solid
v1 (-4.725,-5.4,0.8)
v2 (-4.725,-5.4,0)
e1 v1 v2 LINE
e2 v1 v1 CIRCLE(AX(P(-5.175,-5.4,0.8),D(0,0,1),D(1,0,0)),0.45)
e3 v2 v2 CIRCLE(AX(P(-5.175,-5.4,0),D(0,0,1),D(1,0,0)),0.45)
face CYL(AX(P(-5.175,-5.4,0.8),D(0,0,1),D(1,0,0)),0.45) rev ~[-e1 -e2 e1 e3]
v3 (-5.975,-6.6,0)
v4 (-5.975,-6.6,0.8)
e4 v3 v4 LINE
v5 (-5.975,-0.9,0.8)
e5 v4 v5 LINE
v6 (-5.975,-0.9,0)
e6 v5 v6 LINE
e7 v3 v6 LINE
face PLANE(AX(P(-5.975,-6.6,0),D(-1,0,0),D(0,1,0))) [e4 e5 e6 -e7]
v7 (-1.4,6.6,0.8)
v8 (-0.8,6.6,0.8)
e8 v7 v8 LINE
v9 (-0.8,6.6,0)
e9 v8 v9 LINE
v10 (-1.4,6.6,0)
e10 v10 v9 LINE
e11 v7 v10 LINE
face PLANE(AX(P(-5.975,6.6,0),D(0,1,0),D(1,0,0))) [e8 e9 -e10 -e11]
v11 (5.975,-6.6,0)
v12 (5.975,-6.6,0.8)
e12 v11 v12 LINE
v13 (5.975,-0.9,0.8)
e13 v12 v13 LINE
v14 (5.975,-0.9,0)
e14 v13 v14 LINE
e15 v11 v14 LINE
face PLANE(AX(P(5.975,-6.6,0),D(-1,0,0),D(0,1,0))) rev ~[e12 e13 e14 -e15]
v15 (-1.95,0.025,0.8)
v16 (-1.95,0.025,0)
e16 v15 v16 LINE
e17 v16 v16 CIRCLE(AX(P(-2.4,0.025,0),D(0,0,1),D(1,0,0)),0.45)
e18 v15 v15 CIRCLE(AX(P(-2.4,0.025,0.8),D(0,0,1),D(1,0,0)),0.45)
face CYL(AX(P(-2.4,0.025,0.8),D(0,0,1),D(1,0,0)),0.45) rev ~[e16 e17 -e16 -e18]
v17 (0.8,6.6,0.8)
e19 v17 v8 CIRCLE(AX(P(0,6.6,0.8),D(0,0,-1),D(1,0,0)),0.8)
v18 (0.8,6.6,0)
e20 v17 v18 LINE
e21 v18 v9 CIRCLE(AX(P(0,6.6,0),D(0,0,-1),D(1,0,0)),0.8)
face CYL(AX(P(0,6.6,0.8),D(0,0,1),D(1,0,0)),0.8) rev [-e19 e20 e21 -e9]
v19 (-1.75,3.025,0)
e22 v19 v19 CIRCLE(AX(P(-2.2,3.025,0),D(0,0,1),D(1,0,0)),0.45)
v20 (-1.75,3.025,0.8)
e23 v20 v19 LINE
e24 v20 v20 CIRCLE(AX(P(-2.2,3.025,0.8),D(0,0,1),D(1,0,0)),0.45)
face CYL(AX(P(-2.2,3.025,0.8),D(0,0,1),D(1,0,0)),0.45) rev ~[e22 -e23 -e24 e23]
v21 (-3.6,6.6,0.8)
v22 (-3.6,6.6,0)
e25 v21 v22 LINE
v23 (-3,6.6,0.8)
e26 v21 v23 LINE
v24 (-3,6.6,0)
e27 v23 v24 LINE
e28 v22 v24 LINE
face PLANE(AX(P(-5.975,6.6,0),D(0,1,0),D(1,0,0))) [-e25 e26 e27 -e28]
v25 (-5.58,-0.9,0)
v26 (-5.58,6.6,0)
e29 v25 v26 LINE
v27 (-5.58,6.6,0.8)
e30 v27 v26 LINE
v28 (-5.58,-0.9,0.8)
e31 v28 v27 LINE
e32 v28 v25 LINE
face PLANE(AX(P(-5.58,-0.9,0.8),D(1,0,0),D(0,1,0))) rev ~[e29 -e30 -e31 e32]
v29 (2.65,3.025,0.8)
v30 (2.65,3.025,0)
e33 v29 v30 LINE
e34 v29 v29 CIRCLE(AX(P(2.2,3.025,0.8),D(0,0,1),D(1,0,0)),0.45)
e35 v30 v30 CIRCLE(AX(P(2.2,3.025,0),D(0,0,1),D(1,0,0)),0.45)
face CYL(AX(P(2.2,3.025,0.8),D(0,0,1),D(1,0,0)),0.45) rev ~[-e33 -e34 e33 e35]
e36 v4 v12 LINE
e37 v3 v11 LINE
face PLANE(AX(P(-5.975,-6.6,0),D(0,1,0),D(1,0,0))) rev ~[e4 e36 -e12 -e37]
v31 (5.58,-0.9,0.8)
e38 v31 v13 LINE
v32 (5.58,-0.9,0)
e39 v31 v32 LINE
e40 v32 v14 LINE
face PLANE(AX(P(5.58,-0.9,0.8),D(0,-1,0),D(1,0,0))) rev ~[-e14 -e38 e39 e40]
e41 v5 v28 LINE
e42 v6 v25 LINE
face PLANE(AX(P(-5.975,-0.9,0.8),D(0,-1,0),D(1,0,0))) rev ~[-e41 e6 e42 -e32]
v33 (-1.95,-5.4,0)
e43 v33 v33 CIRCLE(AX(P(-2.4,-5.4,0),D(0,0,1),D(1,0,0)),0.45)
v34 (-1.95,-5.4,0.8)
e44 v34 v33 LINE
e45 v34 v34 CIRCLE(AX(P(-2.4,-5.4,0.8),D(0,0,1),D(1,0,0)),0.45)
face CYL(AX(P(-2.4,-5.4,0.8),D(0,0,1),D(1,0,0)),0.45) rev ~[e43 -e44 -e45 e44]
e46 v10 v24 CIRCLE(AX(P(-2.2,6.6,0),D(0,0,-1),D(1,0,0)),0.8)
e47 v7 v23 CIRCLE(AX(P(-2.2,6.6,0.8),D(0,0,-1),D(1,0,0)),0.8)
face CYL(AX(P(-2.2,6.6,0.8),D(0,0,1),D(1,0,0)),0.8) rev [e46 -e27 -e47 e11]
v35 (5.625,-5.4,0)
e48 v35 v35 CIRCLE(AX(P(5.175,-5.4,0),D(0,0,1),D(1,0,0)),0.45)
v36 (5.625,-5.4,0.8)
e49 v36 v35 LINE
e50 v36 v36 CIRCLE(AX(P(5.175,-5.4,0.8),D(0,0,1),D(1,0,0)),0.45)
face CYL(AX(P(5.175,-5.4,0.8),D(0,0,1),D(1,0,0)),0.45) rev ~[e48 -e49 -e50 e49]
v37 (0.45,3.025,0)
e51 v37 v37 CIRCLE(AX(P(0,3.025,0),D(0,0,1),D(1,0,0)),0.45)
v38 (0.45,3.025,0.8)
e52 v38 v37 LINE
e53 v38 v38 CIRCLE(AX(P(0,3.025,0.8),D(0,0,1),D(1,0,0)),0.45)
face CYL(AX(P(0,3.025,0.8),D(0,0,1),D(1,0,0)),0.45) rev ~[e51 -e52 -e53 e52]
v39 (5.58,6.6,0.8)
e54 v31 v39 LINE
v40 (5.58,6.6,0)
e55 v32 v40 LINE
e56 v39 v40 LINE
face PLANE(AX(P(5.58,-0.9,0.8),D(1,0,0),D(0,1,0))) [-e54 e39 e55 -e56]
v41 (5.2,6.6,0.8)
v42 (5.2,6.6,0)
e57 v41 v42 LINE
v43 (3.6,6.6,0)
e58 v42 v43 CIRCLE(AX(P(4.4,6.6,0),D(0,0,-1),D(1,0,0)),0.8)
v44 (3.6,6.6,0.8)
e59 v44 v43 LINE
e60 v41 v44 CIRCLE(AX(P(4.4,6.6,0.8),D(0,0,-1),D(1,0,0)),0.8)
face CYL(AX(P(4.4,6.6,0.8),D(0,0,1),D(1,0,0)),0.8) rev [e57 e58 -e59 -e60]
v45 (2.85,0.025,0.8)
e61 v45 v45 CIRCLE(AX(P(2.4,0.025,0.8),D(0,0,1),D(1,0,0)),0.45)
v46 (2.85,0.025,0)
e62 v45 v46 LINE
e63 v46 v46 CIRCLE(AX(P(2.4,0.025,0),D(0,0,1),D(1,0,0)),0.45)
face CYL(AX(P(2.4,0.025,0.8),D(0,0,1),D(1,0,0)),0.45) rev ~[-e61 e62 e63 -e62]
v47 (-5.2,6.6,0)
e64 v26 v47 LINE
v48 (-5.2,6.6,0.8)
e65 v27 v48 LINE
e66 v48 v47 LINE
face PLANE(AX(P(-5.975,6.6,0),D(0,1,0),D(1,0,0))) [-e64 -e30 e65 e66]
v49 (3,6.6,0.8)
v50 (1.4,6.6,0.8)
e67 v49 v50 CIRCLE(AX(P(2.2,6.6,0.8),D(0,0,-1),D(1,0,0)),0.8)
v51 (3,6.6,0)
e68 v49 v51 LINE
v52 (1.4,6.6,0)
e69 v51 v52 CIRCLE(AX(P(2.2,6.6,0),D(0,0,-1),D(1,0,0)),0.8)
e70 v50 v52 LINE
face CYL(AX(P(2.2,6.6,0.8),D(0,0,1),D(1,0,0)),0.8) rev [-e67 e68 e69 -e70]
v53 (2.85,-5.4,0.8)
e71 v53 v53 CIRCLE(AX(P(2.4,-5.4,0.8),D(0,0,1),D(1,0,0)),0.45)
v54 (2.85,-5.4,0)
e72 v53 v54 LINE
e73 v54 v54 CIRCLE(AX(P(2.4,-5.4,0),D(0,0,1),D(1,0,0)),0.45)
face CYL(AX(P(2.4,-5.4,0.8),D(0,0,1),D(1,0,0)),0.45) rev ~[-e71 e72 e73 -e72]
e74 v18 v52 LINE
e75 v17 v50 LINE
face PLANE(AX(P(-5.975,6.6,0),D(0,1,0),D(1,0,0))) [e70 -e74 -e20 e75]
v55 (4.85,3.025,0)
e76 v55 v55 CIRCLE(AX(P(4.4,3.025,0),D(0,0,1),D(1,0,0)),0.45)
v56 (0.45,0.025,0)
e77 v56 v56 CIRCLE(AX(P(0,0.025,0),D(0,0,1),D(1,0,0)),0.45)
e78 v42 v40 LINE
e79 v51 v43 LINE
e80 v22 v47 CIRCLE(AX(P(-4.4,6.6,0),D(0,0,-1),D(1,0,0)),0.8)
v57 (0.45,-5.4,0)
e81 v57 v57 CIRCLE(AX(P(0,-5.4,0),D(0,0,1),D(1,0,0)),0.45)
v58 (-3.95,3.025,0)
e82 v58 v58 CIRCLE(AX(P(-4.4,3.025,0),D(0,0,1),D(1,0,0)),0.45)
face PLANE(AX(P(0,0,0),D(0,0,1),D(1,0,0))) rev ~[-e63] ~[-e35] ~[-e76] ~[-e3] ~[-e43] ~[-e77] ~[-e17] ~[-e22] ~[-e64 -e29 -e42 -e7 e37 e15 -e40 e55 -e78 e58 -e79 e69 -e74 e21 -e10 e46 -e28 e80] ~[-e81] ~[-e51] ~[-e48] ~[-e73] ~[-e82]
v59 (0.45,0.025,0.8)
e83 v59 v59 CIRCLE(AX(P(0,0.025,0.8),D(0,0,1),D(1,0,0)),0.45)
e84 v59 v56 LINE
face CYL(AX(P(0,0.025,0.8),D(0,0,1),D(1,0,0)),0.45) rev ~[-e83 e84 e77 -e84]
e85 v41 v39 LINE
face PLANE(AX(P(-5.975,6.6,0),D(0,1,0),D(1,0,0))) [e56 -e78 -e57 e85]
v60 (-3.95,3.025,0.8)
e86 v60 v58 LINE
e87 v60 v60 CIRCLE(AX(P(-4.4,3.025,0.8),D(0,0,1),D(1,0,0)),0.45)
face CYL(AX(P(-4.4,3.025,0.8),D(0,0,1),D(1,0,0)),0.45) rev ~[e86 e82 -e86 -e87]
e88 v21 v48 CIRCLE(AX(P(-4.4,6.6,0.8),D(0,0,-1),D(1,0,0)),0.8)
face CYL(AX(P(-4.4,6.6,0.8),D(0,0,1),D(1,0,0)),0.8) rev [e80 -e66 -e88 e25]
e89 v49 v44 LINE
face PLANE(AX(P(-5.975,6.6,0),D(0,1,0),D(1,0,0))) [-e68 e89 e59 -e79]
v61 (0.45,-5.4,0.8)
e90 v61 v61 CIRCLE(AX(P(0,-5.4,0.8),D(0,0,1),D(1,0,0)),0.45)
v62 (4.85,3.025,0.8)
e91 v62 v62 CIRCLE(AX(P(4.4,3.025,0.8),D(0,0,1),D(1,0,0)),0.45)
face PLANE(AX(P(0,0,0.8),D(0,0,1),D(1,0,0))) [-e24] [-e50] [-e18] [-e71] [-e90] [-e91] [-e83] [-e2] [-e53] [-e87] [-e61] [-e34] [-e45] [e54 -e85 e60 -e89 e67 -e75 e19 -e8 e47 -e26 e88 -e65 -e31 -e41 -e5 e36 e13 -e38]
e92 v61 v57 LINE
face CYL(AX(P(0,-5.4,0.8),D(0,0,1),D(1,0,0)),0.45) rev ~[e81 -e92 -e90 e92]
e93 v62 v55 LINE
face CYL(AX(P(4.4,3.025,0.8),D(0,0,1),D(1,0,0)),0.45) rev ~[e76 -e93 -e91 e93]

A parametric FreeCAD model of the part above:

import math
import FreeCAD as App
import Part
import Sketcher


def add_polygon(sketch, points):
    """Adds a closed chain of lines whose ends are joined by coincident constraints."""
    first, n = sketch.GeometryCount, len(points)
    for a, b in zip(points, points[1:] + points[:1]):
        sketch.addGeometry(Part.LineSegment(App.Vector(*a, 0), App.Vector(*b, 0)), False)
    for i in range(n):
        sketch.addConstraint(Sketcher.Constraint("Coincident", first + i, 2, first + (i + 1) % n, 1))

doc = App.newDocument("Part")
params = doc.addObject("Spreadsheet::Sheet", "Params")
for row, (alias, value) in enumerate([
    ("sketch1_height", "13.2 mm"),
    ("sketch1_width", "11.95 mm"),
    ("pad1_length", "0.8 mm"),
    ("sketch2_height", "7.5 mm"),
    ("pocket1_length", "0.8 mm"),
    ("sketch3_radius", "0.8 mm"),
    ("pocket2_length", "0.8 mm"),
    ("sketch4_diameter", "0.9 mm"),
    ("pocket3_length", "0.8 mm"),
], start=1):
    params.set(f"A{row}", alias)
    params.set(f"B{row}", "=" + value)
    params.setAlias(f"B{row}", alias)

body = doc.addObject("PartDesign::Body", "Body")

sketch1 = body.newObject("Sketcher::SketchObject", "Sketch")
sketch1.AttachmentSupport = (doc.getObject("XY_Plane"), [""])
sketch1.MapMode = "FlatFace"
add_polygon(sketch1, [(-5.975, 6.6), (-5.975, -6.6), (5.975, -6.6), (5.975, 6.6)])
sketch1.addConstraint([
    Sketcher.Constraint("Vertical", 0),
    Sketcher.Constraint("Horizontal", 1),
    Sketcher.Constraint("Vertical", 2),
    Sketcher.Constraint("Horizontal", 3),
    Sketcher.Constraint("Symmetric", 0, 2, 2, 2, -1, 1),
    Sketcher.Constraint("DistanceY", 0, 2, 0, 1, 13.2),
    Sketcher.Constraint("DistanceX", 1, 1, 1, 2, 11.95),
])
sketch1.setExpression("Constraints[9]", "Params.sketch1_height")
sketch1.setExpression("Constraints[10]", "Params.sketch1_width")
pad1 = body.newObject("PartDesign::Pad", "Pad")
pad1.Profile = sketch1
pad1.setExpression("Length", "Params.pad1_length")

sketch2 = body.newObject("Sketcher::SketchObject", "Sketch001")
sketch2.AttachmentSupport = (doc.getObject("XY_Plane"), [""])
sketch2.MapMode = "FlatFace"
sketch2.AttachmentOffset = App.Placement(App.Vector(0, 0, 0.8), App.Rotation())
add_polygon(sketch2, [(-5.975, 6.6), (-5.975, -0.9), (-5.58, -0.9), (-5.58, 6.6)])
add_polygon(sketch2, [(5.58, 6.6), (5.58, -0.9), (5.975, -0.9), (5.975, 6.6)])
sketch2.addConstraint([
    Sketcher.Constraint("Vertical", 0),
    Sketcher.Constraint("Horizontal", 1),
    Sketcher.Constraint("Vertical", 2),
    Sketcher.Constraint("Horizontal", 3),
    Sketcher.Constraint("Vertical", 4),
    Sketcher.Constraint("Horizontal", 5),
    Sketcher.Constraint("Vertical", 6),
    Sketcher.Constraint("Horizontal", 7),
    Sketcher.Constraint("Symmetric", 1, 2, 4, 2, -2),
    Sketcher.Constraint("Symmetric", 3, 2, 6, 2, -2),
    Sketcher.Constraint("DistanceY", 0, 2, 0, 1, 7.5),
    Sketcher.Constraint("DistanceY", 0, 2, -1, 1, 0.9),
    Sketcher.Constraint("DistanceX", 1, 1, 1, 2, 0.395),
    Sketcher.Constraint("DistanceX", 1, 2, -1, 1, 5.58),
])
sketch2.setExpression("Constraints[18]", "Params.sketch2_height")
pocket1 = body.newObject("PartDesign::Pocket", "Pocket")
pocket1.Profile = sketch2
pocket1.setExpression("Length", "Params.pocket1_length")

sketch3 = body.newObject("Sketcher::SketchObject", "Sketch002")
sketch3.AttachmentSupport = (doc.getObject("XY_Plane"), [""])
sketch3.MapMode = "FlatFace"
sketch3.AttachmentOffset = App.Placement(App.Vector(0, 0, 0.8), App.Rotation())
sketch3.addGeometry([
    Part.LineSegment(App.Vector(-3.6, 6.6, 0), App.Vector(-5.2, 6.6, 0)),
    Part.ArcOfCircle(Part.Circle(App.Vector(-4.4, 6.6, 0), App.Vector(0, 0, 1), 0.8), math.radians(180), math.radians(360)),
    Part.LineSegment(App.Vector(-1.4, 6.6, 0), App.Vector(-3, 6.6, 0)),
    Part.ArcOfCircle(Part.Circle(App.Vector(-2.2, 6.6, 0), App.Vector(0, 0, 1), 0.8), math.radians(180), math.radians(360)),
    Part.LineSegment(App.Vector(0.8, 6.6, 0), App.Vector(-0.8, 6.6, 0)),
    Part.ArcOfCircle(Part.Circle(App.Vector(0, 6.6, 0), App.Vector(0, 0, 1), 0.8), math.radians(180), math.radians(360)),
    Part.LineSegment(App.Vector(3, 6.6, 0), App.Vector(1.4, 6.6, 0)),
    Part.ArcOfCircle(Part.Circle(App.Vector(2.2, 6.6, 0), App.Vector(0, 0, 1), 0.8), math.radians(180), math.radians(360)),
    Part.LineSegment(App.Vector(5.2, 6.6, 0), App.Vector(3.6, 6.6, 0)),
    Part.ArcOfCircle(Part.Circle(App.Vector(4.4, 6.6, 0), App.Vector(0, 0, 1), 0.8), math.radians(180), math.radians(360)),
], False)
sketch3.addConstraint([
    Sketcher.Constraint("Coincident", 0, 1, 1, 2),
    Sketcher.Constraint("Coincident", 1, 1, 0, 2),
    Sketcher.Constraint("Coincident", 2, 1, 3, 2),
    Sketcher.Constraint("Coincident", 3, 1, 2, 2),
    Sketcher.Constraint("Coincident", 4, 1, 5, 2),
    Sketcher.Constraint("Coincident", 5, 1, 4, 2),
    Sketcher.Constraint("Coincident", 6, 1, 7, 2),
    Sketcher.Constraint("Coincident", 7, 1, 6, 2),
    Sketcher.Constraint("Coincident", 8, 1, 9, 2),
    Sketcher.Constraint("Coincident", 9, 1, 8, 2),
    Sketcher.Constraint("Horizontal", 0),
    Sketcher.Constraint("Horizontal", 2),
    Sketcher.Constraint("Horizontal", 4),
    Sketcher.Constraint("Horizontal", 6),
    Sketcher.Constraint("Horizontal", 8),
    Sketcher.Constraint("Equal", 1, 3),
    Sketcher.Constraint("Equal", 3, 5),
    Sketcher.Constraint("Equal", 5, 7),
    Sketcher.Constraint("Equal", 7, 9),
    Sketcher.Constraint("Symmetric", 3, 3, 7, 3, -2),
    Sketcher.Constraint("Symmetric", 1, 3, 9, 3, -2),
    Sketcher.Constraint("PointOnObject", 5, 3, -2),
    Sketcher.Constraint("Horizontal", 1, 3, 3, 3),
    Sketcher.Constraint("Horizontal", 3, 3, 5, 3),
    Sketcher.Constraint("Horizontal", 9, 3, 0, 1),
    Sketcher.Constraint("Horizontal", 1, 1, 2, 1),
    Sketcher.Constraint("Horizontal", 3, 1, 4, 1),
    Sketcher.Constraint("Horizontal", 5, 1, 6, 1),
    Sketcher.Constraint("Horizontal", 7, 1, 8, 1),
    Sketcher.Constraint("Radius", 1, 0.8),
    Sketcher.Constraint("DistanceX", 3, 1, -1, 1, 3.0),
    Sketcher.Constraint("DistanceX", 0, 1, 9, 3, 8.0),
    Sketcher.Constraint("DistanceY", -1, 1, 1, 3, 6.6),
])
sketch3.setExpression("Constraints[29]", "Params.sketch3_radius")
pocket2 = body.newObject("PartDesign::Pocket", "Pocket001")
pocket2.Profile = sketch3
pocket2.setExpression("Length", "Params.pocket2_length")

sketch4 = body.newObject("Sketcher::SketchObject", "Sketch003")
sketch4.AttachmentSupport = (doc.getObject("XY_Plane"), [""])
sketch4.MapMode = "FlatFace"
sketch4.AttachmentOffset = App.Placement(App.Vector(0, 0, 0.8), App.Rotation())
sketch4.addGeometry([
    Part.Circle(App.Vector(-2.4, -5.4, 0), App.Vector(0, 0, 1), 0.45),
    Part.Circle(App.Vector(0, -5.4, 0), App.Vector(0, 0, 1), 0.45),
    Part.Circle(App.Vector(2.4, -5.4, 0), App.Vector(0, 0, 1), 0.45),
    Part.Circle(App.Vector(-2.4, 0.025, 0), App.Vector(0, 0, 1), 0.45),
    Part.Circle(App.Vector(0, 0.025, 0), App.Vector(0, 0, 1), 0.45),
    Part.Circle(App.Vector(2.4, 0.025, 0), App.Vector(0, 0, 1), 0.45),
    Part.Circle(App.Vector(-5.175, -5.4, 0), App.Vector(0, 0, 1), 0.45),
    Part.Circle(App.Vector(5.175, -5.4, 0), App.Vector(0, 0, 1), 0.45),
    Part.Circle(App.Vector(-4.4, 3.025, 0), App.Vector(0, 0, 1), 0.45),
    Part.Circle(App.Vector(-2.2, 3.025, 0), App.Vector(0, 0, 1), 0.45),
    Part.Circle(App.Vector(0, 3.025, 0), App.Vector(0, 0, 1), 0.45),
    Part.Circle(App.Vector(2.2, 3.025, 0), App.Vector(0, 0, 1), 0.45),
    Part.Circle(App.Vector(4.4, 3.025, 0), App.Vector(0, 0, 1), 0.45),
], False)
sketch4.addConstraint([
    Sketcher.Constraint("Equal", 0, 1),
    Sketcher.Constraint("Equal", 1, 2),
    Sketcher.Constraint("Equal", 2, 3),
    Sketcher.Constraint("Equal", 3, 4),
    Sketcher.Constraint("Equal", 4, 5),
    Sketcher.Constraint("Equal", 5, 6),
    Sketcher.Constraint("Equal", 6, 7),
    Sketcher.Constraint("Equal", 7, 8),
    Sketcher.Constraint("Equal", 8, 9),
    Sketcher.Constraint("Equal", 9, 10),
    Sketcher.Constraint("Equal", 10, 11),
    Sketcher.Constraint("Equal", 11, 12),
    Sketcher.Constraint("Symmetric", 0, 3, 2, 3, -2),
    Sketcher.Constraint("Symmetric", 3, 3, 5, 3, -2),
    Sketcher.Constraint("Symmetric", 6, 3, 7, 3, -2),
    Sketcher.Constraint("Symmetric", 9, 3, 11, 3, -2),
    Sketcher.Constraint("Symmetric", 8, 3, 12, 3, -2),
    Sketcher.Constraint("PointOnObject", 1, 3, -2),
    Sketcher.Constraint("PointOnObject", 4, 3, -2),
    Sketcher.Constraint("PointOnObject", 10, 3, -2),
    Sketcher.Constraint("Horizontal", 0, 3, 1, 3),
    Sketcher.Constraint("Horizontal", 3, 3, 4, 3),
    Sketcher.Constraint("Horizontal", 2, 3, 6, 3),
    Sketcher.Constraint("Horizontal", 8, 3, 9, 3),
    Sketcher.Constraint("Horizontal", 9, 3, 10, 3),
    Sketcher.Constraint("Vertical", 0, 3, 3, 3),
    Sketcher.Constraint("Diameter", 0, 0.9),
    Sketcher.Constraint("DistanceX", 8, 3, 3, 3, 2.0),
    Sketcher.Constraint("DistanceY", 3, 3, 8, 3, 3.0),
    Sketcher.Constraint("DistanceX", 0, 3, -1, 1, 2.4),
    Sketcher.Constraint("DistanceY", 0, 3, -1, 1, 5.4),
    Sketcher.Constraint("DistanceX", 9, 3, -1, 1, 2.2),
    Sketcher.Constraint("DistanceY", -1, 1, 3, 3, 0.025),
    Sketcher.Constraint("DistanceX", 6, 3, -1, 1, 5.175),
])
sketch4.setExpression("Constraints[26]", "Params.sketch4_diameter")
pocket3 = body.newObject("PartDesign::Pocket", "Pocket002")
pocket3.Profile = sketch4
pocket3.setExpression("Length", "Params.pocket3_length")

doc.recompute()
